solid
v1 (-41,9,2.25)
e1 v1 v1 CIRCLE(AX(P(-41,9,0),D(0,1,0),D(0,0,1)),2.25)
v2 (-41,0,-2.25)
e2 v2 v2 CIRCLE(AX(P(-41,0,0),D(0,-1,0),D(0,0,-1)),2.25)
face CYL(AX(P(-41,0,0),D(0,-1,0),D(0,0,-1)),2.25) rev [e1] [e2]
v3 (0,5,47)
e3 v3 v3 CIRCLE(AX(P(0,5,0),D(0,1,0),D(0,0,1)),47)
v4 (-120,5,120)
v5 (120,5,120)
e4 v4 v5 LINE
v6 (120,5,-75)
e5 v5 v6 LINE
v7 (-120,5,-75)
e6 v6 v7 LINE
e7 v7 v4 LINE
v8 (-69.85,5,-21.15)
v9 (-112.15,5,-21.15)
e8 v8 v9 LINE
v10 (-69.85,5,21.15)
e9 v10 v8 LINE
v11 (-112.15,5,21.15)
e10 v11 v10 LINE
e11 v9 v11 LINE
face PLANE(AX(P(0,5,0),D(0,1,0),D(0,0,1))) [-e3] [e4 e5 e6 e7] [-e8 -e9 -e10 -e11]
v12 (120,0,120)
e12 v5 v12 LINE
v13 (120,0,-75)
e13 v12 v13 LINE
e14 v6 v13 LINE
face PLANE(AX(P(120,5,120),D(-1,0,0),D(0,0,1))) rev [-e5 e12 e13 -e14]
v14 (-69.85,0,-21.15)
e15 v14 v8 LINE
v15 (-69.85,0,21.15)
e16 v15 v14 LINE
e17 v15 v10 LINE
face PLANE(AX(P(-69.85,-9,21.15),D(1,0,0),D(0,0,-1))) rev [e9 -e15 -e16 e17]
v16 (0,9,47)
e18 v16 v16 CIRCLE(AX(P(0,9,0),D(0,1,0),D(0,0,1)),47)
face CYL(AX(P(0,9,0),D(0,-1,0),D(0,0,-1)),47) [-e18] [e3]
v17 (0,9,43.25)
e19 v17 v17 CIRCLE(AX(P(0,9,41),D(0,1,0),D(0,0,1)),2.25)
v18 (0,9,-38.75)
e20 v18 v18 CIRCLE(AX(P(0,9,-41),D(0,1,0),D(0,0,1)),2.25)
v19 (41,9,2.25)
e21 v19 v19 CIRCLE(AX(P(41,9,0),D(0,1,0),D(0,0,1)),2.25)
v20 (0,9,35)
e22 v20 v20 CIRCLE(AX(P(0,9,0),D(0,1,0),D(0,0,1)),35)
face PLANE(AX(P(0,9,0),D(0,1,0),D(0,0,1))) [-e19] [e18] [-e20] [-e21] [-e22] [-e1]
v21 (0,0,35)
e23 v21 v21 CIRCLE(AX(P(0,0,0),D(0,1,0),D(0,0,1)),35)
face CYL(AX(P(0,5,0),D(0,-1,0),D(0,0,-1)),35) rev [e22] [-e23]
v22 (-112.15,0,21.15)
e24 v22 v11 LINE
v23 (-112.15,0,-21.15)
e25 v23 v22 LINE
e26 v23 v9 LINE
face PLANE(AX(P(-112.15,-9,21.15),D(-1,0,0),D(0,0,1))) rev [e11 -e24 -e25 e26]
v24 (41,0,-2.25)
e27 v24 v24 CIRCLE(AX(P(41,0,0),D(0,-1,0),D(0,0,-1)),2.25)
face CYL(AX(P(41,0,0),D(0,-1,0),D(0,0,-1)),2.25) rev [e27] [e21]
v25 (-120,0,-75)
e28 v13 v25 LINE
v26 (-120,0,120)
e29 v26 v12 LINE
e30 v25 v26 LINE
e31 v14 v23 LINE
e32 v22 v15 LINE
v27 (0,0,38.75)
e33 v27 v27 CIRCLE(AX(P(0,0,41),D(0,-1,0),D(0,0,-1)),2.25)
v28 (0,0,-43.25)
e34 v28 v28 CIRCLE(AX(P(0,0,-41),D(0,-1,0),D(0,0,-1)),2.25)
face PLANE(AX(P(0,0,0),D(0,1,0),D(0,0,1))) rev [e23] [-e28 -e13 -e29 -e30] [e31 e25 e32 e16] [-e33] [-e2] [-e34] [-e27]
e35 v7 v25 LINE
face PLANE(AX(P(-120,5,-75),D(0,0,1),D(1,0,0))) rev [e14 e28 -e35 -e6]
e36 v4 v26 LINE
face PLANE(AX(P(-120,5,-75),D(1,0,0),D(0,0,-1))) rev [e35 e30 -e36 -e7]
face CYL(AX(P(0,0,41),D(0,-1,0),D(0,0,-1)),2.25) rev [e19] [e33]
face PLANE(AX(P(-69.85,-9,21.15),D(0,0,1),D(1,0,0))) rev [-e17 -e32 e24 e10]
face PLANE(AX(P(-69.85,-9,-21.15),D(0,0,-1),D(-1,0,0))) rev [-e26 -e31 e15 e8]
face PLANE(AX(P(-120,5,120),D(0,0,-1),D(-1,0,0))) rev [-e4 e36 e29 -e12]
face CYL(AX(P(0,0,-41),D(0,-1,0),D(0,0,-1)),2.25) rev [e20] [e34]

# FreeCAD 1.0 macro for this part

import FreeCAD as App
import Part
import Sketcher

V = App.Vector


def add_polygon(sketch, points):
    """Adds a closed chain of lines whose ends are joined by coincident constraints."""
    first, n = sketch.GeometryCount, len(points)
    for a, b in zip(points, points[1:] + points[:1]):
        sketch.addGeometry(Part.LineSegment(App.Vector(*a, 0), App.Vector(*b, 0)), False)
    for i in range(n):
        sketch.addConstraint(Sketcher.Constraint("Coincident", first + i, 2, first + (i + 1) % n, 1))

doc = App.newDocument("Part")
body = doc.addObject("PartDesign::Body", "Body")

# Sketch on XZ plane
sketch1 = doc.addObject("Sketcher::SketchObject", "Sketch")
body.addObject(sketch1)
sketch1.AttachmentSupport = (doc.XZ_Plane, [""])
sketch1.MapMode = "FlatFace"
add_polygon(sketch1, [(-120, -75), (-120, 120), (120, 120), (120, -75)])  # lines 0-3
sketch1.addGeometry(Part.Circle(V(0, 0, 0), V(0, 0, 1), 35), False)  # 4
sketch1.addConstraint(Sketcher.Constraint("Vertical", 0))
sketch1.addConstraint(Sketcher.Constraint("Horizontal", 1))
sketch1.addConstraint(Sketcher.Constraint("Vertical", 2))
sketch1.addConstraint(Sketcher.Constraint("Horizontal", 3))
sketch1.addConstraint(Sketcher.Constraint("Coincident", 4, 3, -1, 1))
sketch1.addConstraint(Sketcher.Constraint("Diameter", 4, 70.0))
sketch1.addConstraint(Sketcher.Constraint("DistanceX", 1, 1, 1, 2, 240.0))
sketch1.addConstraint(Sketcher.Constraint("DistanceY", 0, 1, 0, 2, 195.0))
sketch1.addConstraint(Sketcher.Constraint("DistanceX", 0, 2, -1, 1, 120.0))
sketch1.addConstraint(Sketcher.Constraint("DistanceY", -1, 1, 0, 2, 120.0))
pad1 = doc.addObject("PartDesign::Pad", "Pad")
body.addObject(pad1)
pad1.Profile = sketch1
pad1.Length = 5
pad1.Reversed = True

# Sketch on XZ plane
sketch2 = doc.addObject("Sketcher::SketchObject", "Sketch001")
body.addObject(sketch2)
sketch2.AttachmentSupport = (doc.XZ_Plane, [""])
sketch2.MapMode = "FlatFace"
sketch2.AttachmentOffset = App.Placement(V(0, 0, -5), App.Rotation())
sketch2.addGeometry(Part.Circle(V(0, 0, 0), V(0, 0, 1), 47), False)
sketch2.addGeometry(Part.Circle(V(0, 0, 0), V(0, 0, 1), 35), False)
sketch2.addConstraint(Sketcher.Constraint("Coincident", 0, 3, -1, 1))
sketch2.addConstraint(Sketcher.Constraint("Coincident", 1, 3, -1, 1))
sketch2.addConstraint(Sketcher.Constraint("Diameter", 0, 94.0))
sketch2.addConstraint(Sketcher.Constraint("Diameter", 1, 70.0))
pad2 = doc.addObject("PartDesign::Pad", "Pad001")
body.addObject(pad2)
pad2.Profile = sketch2
pad2.Length = 4
pad2.Reversed = True

# Sketch on XZ plane
sketch3 = doc.addObject("Sketcher::SketchObject", "Sketch002")
body.addObject(sketch3)
sketch3.AttachmentSupport = (doc.XZ_Plane, [""])
sketch3.MapMode = "FlatFace"
sketch3.addGeometry(Part.Circle(V(41, 0, 0), V(0, 0, 1), 2.2), False)
sketch3.addGeometry(Part.Circle(V(0, -41, 0), V(0, 0, 1), 2.2), False)
sketch3.addGeometry(Part.Circle(V(-41, 0, 0), V(0, 0, 1), 2.2), False)
sketch3.addGeometry(Part.Circle(V(0, 41, 0), V(0, 0, 1), 2.2), False)
sketch3.addConstraint(Sketcher.Constraint("Equal", 0, 1))
sketch3.addConstraint(Sketcher.Constraint("Equal", 1, 2))
sketch3.addConstraint(Sketcher.Constraint("Equal", 2, 3))
sketch3.addConstraint(Sketcher.Constraint("Symmetric", 0, 3, 2, 3, -1, 1))
sketch3.addConstraint(Sketcher.Constraint("Symmetric", 1, 3, 3, 3, -1, 1))
sketch3.addConstraint(Sketcher.Constraint("PointOnObject", 0, 3, -1))
sketch3.addConstraint(Sketcher.Constraint("PointOnObject", 1, 3, -2))
sketch3.addConstraint(Sketcher.Constraint("Diameter", 0, 4.5))
sketch3.addConstraint(Sketcher.Constraint("DistanceX", -1, 1, 0, 3, 41.0))
sketch3.addConstraint(Sketcher.Constraint("DistanceY", 1, 3, -1, 1, 41.0))
doc.recompute()
hole = doc.addObject("PartDesign::Hole", "Hole")
body.addObject(hole)
hole.Profile = sketch3
hole.ThreadType = "None"
hole.Diameter = 4.5
hole.DepthType = "Dimension"
hole.Depth = 18.1
hole.DrillPoint = "Angled"
hole.DrillPointAngle = 118

# Sketch on XZ plane
sketch4 = doc.addObject("Sketcher::SketchObject", "Sketch003")
body.addObject(sketch4)
sketch4.AttachmentSupport = (doc.XZ_Plane, [""])
sketch4.MapMode = "FlatFace"
sketch4.AttachmentOffset = App.Placement(V(0, 0, -5), App.Rotation())
add_polygon(sketch4, [(-112, -21), (-112, 21), (-70, 21), (-70, -21)])  # lines 0-3
sketch4.addConstraint(Sketcher.Constraint("Vertical", 0))
sketch4.addConstraint(Sketcher.Constraint("Horizontal", 1))
sketch4.addConstraint(Sketcher.Constraint("Vertical", 2))
sketch4.addConstraint(Sketcher.Constraint("Horizontal", 3))
sketch4.addConstraint(Sketcher.Constraint("Equal", 3, 0))
sketch4.addConstraint(Sketcher.Constraint("DistanceX", 1, 1, 1, 2, 42.3))
sketch4.addConstraint(Sketcher.Constraint("DistanceX", 0, 2, -1, 1, 112.15))
sketch4.addConstraint(Sketcher.Constraint("DistanceY", -1, 1, 0, 2, 21.15))
pocket1 = doc.addObject("PartDesign::Pocket", "Pocket")
body.addObject(pocket1)
pocket1.Profile = sketch4
pocket1.Length = 14
pocket1.Reversed = True

doc.recompute()
